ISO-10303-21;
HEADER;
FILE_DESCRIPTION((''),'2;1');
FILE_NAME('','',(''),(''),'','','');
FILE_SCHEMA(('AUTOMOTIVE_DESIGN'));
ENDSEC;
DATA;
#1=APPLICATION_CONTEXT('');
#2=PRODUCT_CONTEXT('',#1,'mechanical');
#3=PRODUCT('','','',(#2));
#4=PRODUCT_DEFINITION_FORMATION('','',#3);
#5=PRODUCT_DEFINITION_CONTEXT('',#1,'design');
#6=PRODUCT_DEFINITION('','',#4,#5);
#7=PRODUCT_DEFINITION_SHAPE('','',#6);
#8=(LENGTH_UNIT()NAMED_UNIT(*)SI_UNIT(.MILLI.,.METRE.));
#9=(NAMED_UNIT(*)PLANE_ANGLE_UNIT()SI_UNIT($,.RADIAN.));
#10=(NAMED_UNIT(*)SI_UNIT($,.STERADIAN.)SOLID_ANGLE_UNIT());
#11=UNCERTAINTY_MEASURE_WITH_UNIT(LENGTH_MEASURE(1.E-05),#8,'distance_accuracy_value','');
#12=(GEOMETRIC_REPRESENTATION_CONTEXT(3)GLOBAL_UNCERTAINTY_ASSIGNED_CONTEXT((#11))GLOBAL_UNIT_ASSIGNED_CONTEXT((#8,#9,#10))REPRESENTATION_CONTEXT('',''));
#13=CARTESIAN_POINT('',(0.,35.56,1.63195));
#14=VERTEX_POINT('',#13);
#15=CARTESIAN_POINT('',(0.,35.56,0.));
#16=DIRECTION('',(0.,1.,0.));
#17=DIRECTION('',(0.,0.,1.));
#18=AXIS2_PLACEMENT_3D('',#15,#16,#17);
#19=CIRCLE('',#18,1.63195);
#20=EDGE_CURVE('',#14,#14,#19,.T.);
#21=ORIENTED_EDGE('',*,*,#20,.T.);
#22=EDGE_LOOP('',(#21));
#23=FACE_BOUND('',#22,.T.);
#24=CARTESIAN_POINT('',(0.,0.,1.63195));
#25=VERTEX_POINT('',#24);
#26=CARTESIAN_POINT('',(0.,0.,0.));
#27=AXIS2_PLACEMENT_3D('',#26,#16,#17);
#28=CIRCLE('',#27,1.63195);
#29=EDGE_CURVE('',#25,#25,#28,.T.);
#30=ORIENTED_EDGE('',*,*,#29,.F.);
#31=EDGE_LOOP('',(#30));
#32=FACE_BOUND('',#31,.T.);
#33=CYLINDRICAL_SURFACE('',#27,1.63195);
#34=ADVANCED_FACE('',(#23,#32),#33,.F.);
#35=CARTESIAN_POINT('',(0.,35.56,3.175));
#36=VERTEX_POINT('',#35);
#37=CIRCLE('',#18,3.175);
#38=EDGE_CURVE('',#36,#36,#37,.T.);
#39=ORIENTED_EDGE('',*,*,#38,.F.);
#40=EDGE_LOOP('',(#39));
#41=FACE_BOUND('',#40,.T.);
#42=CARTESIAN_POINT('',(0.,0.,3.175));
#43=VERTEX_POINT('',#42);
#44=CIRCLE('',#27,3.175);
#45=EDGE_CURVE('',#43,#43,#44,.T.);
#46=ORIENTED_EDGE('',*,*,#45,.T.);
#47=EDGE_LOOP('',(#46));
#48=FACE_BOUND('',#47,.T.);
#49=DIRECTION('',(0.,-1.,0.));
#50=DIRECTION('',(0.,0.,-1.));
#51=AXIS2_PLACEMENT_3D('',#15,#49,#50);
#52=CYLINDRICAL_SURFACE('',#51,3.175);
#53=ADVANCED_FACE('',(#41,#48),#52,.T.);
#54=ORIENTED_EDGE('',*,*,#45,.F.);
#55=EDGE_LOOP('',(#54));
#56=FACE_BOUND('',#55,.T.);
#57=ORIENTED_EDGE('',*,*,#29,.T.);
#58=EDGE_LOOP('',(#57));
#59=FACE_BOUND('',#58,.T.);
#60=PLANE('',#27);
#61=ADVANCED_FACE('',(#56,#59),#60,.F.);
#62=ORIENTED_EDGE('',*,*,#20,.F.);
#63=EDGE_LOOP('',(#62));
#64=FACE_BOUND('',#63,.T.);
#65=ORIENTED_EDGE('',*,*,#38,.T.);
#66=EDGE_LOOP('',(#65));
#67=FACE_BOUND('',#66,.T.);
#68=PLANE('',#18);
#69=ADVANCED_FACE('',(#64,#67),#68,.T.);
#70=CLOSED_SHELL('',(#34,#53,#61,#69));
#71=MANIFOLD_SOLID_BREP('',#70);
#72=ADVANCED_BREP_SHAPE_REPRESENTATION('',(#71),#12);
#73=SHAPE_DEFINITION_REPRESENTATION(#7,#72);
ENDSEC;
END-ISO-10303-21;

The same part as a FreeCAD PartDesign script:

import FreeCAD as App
import Part
import Sketcher

V = App.Vector
Q = App.Units.Quantity

doc = App.newDocument("Part")
body = doc.addObject("PartDesign::Body", "Body")

# Sketch on XZ plane
sketch1 = doc.addObject("Sketcher::SketchObject", "Sketch")
body.addObject(sketch1)
sketch1.AttachmentSupport = (doc.XZ_Plane, [""])
sketch1.MapMode = "FlatFace"
sketch1.addGeometry(Part.Circle(V(0, 0, 0), V(0, 0, 1), 3.2), False)
sketch1.addConstraint(Sketcher.Constraint("Coincident", 0, 3, -1, 1))
sketch1.addConstraint(Sketcher.Constraint("Diameter", 0, Q("0.25 in")))
pad1 = doc.addObject("PartDesign::Pad", "Pad")
body.addObject(pad1)
pad1.Profile = sketch1
pad1.Length = Q("1.4 in")
pad1.Reversed = True

# Sketch on XZ plane
sketch2 = doc.addObject("Sketcher::SketchObject", "Sketch001")
body.addObject(sketch2)
sketch2.AttachmentSupport = (doc.XZ_Plane, [""])
sketch2.MapMode = "FlatFace"
sketch2.AttachmentOffset = App.Placement(V(0, 0, -1.4 * 25.4), App.Rotation())
sketch2.addGeometry(Part.Circle(V(0, 0, 0), V(0, 0, 1), 1.6), False)
sketch2.addConstraint(Sketcher.Constraint("Coincident", 0, 3, -1, 1))
sketch2.addConstraint(Sketcher.Constraint("Diameter", 0, Q("0.1285 in")))
pocket1 = doc.addObject("PartDesign::Pocket", "Pocket")
body.addObject(pocket1)
pocket1.Profile = sketch2
pocket1.Type = "ThroughAll"
pocket1.Reversed = True

doc.recompute()
